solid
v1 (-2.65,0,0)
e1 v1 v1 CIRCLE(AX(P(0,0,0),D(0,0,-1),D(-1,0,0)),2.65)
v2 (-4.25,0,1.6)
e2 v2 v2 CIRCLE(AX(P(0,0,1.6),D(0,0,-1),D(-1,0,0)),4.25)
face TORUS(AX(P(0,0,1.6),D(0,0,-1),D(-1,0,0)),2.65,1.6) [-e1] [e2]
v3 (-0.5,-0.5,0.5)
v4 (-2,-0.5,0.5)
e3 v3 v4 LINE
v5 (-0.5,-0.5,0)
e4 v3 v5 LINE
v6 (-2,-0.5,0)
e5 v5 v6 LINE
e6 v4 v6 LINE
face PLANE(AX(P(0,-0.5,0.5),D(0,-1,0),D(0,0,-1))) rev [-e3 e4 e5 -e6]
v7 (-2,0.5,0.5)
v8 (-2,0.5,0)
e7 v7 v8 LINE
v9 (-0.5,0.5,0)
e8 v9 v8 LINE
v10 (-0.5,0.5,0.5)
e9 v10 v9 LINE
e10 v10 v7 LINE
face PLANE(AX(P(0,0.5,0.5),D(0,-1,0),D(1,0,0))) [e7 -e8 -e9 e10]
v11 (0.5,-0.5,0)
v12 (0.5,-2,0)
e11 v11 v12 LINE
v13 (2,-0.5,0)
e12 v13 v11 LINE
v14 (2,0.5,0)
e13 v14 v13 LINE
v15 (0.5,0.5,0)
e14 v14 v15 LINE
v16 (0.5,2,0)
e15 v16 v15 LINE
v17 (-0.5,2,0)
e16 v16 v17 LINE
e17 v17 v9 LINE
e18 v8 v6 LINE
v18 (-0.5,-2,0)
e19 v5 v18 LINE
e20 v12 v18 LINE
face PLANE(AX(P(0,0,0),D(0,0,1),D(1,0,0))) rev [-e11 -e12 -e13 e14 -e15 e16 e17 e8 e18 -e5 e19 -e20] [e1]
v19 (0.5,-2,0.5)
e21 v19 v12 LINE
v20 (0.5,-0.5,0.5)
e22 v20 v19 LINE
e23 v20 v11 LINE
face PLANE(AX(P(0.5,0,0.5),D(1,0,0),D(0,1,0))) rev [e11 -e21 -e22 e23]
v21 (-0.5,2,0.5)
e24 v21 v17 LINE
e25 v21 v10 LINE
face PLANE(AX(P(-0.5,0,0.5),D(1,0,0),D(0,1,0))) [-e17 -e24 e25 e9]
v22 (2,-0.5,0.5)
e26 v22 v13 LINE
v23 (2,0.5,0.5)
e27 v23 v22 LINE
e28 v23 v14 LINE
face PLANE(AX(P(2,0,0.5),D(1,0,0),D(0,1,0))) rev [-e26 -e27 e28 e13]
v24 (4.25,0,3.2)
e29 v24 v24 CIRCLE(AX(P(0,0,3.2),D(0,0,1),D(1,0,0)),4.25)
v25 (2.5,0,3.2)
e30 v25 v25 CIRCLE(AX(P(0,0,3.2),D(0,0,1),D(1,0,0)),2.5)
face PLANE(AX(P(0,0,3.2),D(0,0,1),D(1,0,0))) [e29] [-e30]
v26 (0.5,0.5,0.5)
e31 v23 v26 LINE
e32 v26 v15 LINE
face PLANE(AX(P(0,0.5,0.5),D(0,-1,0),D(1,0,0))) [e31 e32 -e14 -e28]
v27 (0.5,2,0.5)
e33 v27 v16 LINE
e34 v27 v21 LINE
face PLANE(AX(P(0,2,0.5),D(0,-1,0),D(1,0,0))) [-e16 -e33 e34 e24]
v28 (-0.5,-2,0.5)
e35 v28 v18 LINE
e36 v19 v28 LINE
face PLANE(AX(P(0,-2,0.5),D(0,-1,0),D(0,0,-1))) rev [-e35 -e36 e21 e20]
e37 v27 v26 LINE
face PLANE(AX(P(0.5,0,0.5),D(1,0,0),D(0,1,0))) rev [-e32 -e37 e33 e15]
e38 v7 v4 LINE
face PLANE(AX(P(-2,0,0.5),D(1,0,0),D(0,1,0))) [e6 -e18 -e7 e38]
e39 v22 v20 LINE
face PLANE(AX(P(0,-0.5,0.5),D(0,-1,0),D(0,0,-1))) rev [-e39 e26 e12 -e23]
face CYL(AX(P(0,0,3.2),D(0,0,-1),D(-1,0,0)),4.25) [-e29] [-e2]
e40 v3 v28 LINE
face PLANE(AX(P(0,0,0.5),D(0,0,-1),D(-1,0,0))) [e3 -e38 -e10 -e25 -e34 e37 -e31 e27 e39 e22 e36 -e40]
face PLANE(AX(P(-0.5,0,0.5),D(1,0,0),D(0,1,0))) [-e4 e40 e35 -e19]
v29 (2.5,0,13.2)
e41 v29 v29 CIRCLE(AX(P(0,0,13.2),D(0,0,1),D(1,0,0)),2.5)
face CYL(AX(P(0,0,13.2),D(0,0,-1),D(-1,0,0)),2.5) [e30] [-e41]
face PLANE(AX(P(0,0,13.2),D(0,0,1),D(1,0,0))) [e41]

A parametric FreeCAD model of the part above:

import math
import FreeCAD as App
import Part
import Sketcher
Q = App.Units.Quantity


def add_polygon(sketch, points):
    """Adds a closed chain of lines whose ends are joined by coincident constraints."""
    first, n = sketch.GeometryCount, len(points)
    for a, b in zip(points, points[1:] + points[:1]):
        sketch.addGeometry(Part.LineSegment(App.Vector(*a, 0), App.Vector(*b, 0)), False)
    for i in range(n):
        sketch.addConstraint(Sketcher.Constraint("Coincident", first + i, 2, first + (i + 1) % n, 1))

doc = App.newDocument("Part")
body = doc.addObject("PartDesign::Body", "Body")

sketch1 = doc.addObject("Sketcher::SketchObject", "Sketch")
body.addObject(sketch1)
sketch1.AttachmentSupport = (doc.XY_Plane, [""])
sketch1.MapMode = "FlatFace"
sketch1.addGeometry(Part.Circle(App.Vector(0, 0, 0), App.Vector(0, 0, 1), 4.2), False)
sketch1.addConstraint(Sketcher.Constraint("Coincident", 0, 3, -1, 1))
sketch1.addConstraint(Sketcher.Constraint("Diameter", 0, Q("8.5 mm")))
pad1 = doc.addObject("PartDesign::Pad", "Pad")
body.addObject(pad1)
pad1.Profile = sketch1
pad1.Length = 3.2

sketch2 = doc.addObject("Sketcher::SketchObject", "Sketch001")
body.addObject(sketch2)
sketch2.AttachmentSupport = (doc.XZ_Plane, [""])
sketch2.MapMode = "FlatFace"
sketch2.addGeometry(Part.LineSegment(App.Vector(-4.2, 0, 0), App.Vector(-4.2, 1.6, 0)), False)
sketch2.addGeometry(Part.ArcOfCircle(Part.Circle(App.Vector(-2.6, 1.6, 0), App.Vector(0, 0, 1), 1.6), math.radians(180), math.radians(270)), False)
sketch2.addGeometry(Part.LineSegment(App.Vector(-2.6, 0, 0), App.Vector(-4.2, 0, 0)), False)
sketch2.addConstraint(Sketcher.Constraint("Tangent", 0, 2, 1, 1))
sketch2.addConstraint(Sketcher.Constraint("Tangent", 1, 2, 2, 1))
sketch2.addConstraint(Sketcher.Constraint("Coincident", 2, 2, 0, 1))
sketch2.addConstraint(Sketcher.Constraint("Vertical", 0))
sketch2.addConstraint(Sketcher.Constraint("Horizontal", 2))
sketch2.addConstraint(Sketcher.Constraint("PointOnObject", 1, 2, -1))
sketch2.addConstraint(Sketcher.Constraint("Radius", 1, Q("1.6 mm")))
sketch2.addConstraint(Sketcher.Constraint("DistanceX", 1, 3, -1, 1, Q("2.65 mm")))
groove = doc.addObject("PartDesign::Groove", "Groove")
body.addObject(groove)
groove.Profile = sketch2
groove.ReferenceAxis = (sketch2, ["V_Axis"])
groove.Angle = 360

sketch3 = doc.addObject("Sketcher::SketchObject", "Sketch002")
body.addObject(sketch3)
sketch3.AttachmentSupport = (doc.XY_Plane, [""])
sketch3.MapMode = "FlatFace"
add_polygon(sketch3, [(0.5, -0.5), (0.5, -2), (-0.5, -2), (-0.5, -0.5), (-2, -0.5), (-2, 0.5), (-0.5, 0.5), (-0.5, 2), (0.5, 2), (0.5, 0.5), (2, 0.5), (2, -0.5)])
sketch3.addConstraint(Sketcher.Constraint("Vertical", 0))
sketch3.addConstraint(Sketcher.Constraint("Horizontal", 1))
sketch3.addConstraint(Sketcher.Constraint("Vertical", 2))
sketch3.addConstraint(Sketcher.Constraint("Horizontal", 3))
sketch3.addConstraint(Sketcher.Constraint("Vertical", 4))
sketch3.addConstraint(Sketcher.Constraint("Horizontal", 5))
sketch3.addConstraint(Sketcher.Constraint("Vertical", 6))
sketch3.addConstraint(Sketcher.Constraint("Horizontal", 7))
sketch3.addConstraint(Sketcher.Constraint("Vertical", 8))
sketch3.addConstraint(Sketcher.Constraint("Horizontal", 9))
sketch3.addConstraint(Sketcher.Constraint("Vertical", 10))
sketch3.addConstraint(Sketcher.Constraint("Horizontal", 11))
sketch3.addConstraint(Sketcher.Constraint("Symmetric", 0, 2, 6, 2, -1, 1))
sketch3.addConstraint(Sketcher.Constraint("Symmetric", 2, 2, 8, 2, -1, 1))
sketch3.addConstraint(Sketcher.Constraint("Symmetric", 4, 2, 10, 2, -1, 1))
sketch3.addConstraint(Sketcher.Constraint("Symmetric", 5, 2, 8, 2, -2))
sketch3.addConstraint(Sketcher.Constraint("Equal", 11, 0))
sketch3.addConstraint(Sketcher.Constraint("Equal", 7, 4))
sketch3.addConstraint(Sketcher.Constraint("DistanceX", 1, 2, 1, 1, Q("1 mm")))
sketch3.addConstraint(Sketcher.Constraint("DistanceX", 3, 2, 3, 1, Q("1.5 mm")))
pocket1 = doc.addObject("PartDesign::Pocket", "Pocket")
body.addObject(pocket1)
pocket1.Profile = sketch3
pocket1.Length = 0.5
pocket1.Reversed = True

sketch4 = doc.addObject("Sketcher::SketchObject", "Sketch003")
body.addObject(sketch4)
sketch4.AttachmentSupport = (doc.XY_Plane, [""])
sketch4.MapMode = "FlatFace"
sketch4.AttachmentOffset = App.Placement(App.Vector(0, 0, 3.2), App.Rotation())
sketch4.addGeometry(Part.Circle(App.Vector(0, 0, 0), App.Vector(0, 0, 1), 2.5), False)
sketch4.addConstraint(Sketcher.Constraint("Coincident", 0, 3, -1, 1))
sketch4.addConstraint(Sketcher.Constraint("Diameter", 0, Q("5 mm")))
pad2 = doc.addObject("PartDesign::Pad", "Pad001")
body.addObject(pad2)
pad2.Profile = sketch4
pad2.Length = 10

doc.recompute()
